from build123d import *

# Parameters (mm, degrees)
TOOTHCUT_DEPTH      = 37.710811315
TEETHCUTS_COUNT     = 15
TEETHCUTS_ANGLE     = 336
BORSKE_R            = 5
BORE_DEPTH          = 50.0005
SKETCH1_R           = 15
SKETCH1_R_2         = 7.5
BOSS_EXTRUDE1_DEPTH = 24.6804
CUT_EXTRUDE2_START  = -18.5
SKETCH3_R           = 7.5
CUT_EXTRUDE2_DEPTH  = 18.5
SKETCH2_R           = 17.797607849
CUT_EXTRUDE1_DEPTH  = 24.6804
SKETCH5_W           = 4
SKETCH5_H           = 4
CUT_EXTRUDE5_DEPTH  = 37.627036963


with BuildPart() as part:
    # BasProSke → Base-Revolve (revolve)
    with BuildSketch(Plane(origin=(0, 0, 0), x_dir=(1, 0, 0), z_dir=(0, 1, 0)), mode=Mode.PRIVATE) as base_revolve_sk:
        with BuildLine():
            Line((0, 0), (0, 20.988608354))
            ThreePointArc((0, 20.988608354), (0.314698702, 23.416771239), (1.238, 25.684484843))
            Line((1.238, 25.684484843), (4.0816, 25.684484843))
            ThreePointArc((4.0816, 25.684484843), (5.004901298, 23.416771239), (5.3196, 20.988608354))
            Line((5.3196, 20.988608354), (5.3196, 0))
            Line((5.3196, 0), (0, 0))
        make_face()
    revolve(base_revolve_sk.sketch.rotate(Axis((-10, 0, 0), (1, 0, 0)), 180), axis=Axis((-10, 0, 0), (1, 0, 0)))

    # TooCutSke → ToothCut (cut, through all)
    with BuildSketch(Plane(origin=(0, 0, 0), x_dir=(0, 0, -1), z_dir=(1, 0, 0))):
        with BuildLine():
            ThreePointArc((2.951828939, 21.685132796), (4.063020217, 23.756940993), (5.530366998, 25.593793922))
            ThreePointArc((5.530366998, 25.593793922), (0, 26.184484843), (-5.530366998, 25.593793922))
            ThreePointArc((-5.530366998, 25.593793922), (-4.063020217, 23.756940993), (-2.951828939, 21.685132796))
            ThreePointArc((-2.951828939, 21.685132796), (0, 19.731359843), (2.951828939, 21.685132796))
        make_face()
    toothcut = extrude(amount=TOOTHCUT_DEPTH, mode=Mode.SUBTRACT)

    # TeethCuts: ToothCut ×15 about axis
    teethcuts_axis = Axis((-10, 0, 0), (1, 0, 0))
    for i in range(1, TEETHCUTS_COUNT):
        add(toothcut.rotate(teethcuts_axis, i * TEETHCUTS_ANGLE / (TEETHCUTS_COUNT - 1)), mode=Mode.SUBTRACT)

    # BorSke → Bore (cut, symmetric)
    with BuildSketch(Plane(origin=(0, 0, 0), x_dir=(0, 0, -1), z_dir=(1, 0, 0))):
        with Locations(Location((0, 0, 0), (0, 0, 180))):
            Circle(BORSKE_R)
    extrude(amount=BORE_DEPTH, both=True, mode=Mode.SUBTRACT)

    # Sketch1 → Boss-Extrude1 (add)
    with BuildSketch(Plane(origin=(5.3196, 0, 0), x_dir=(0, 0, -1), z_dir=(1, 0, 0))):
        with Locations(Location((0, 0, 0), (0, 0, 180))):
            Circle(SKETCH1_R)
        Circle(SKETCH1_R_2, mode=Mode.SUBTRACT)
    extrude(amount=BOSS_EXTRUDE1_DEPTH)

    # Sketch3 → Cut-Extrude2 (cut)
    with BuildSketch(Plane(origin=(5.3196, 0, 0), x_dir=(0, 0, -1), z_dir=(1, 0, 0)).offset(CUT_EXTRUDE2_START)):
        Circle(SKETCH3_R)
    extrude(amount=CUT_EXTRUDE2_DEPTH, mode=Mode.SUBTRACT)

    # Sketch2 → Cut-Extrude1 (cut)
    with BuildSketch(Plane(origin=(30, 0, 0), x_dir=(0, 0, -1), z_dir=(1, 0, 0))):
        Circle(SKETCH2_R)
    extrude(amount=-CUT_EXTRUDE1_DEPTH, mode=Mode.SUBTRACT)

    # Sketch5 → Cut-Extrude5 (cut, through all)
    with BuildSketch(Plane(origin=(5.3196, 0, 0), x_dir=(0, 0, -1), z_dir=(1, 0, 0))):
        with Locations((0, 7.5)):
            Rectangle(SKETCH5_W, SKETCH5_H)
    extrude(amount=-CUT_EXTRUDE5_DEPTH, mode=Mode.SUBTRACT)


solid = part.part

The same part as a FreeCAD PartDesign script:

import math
import FreeCAD as App
import Part
import Sketcher
from FreeCAD import Vector


def add_polygon(sketch, points):
    """Adds a closed chain of lines whose ends are joined by coincident constraints."""
    first, n = sketch.GeometryCount, len(points)
    for a, b in zip(points, points[1:] + points[:1]):
        sketch.addGeometry(Part.LineSegment(App.Vector(*a, 0), App.Vector(*b, 0)), False)
    for i in range(n):
        sketch.addConstraint(Sketcher.Constraint("Coincident", first + i, 2, first + (i + 1) % n, 1))

doc = App.newDocument("Part")
body = doc.addObject("PartDesign::Body", "Body")

# Sketch on XZ plane
sketch1 = body.newObject("Sketcher::SketchObject", "Sketch")
sketch1.AttachmentSupport = (doc.getObject("XZ_Plane"), [""])
sketch1.MapMode = "FlatFace"
sketch1.addGeometry(Part.LineSegment(Vector(0, -21, 0), Vector(0, 0, 0)), False)
sketch1.addGeometry(Part.LineSegment(Vector(0, 0, 0), Vector(5.3, 0, 0)), False)
sketch1.addGeometry(Part.LineSegment(Vector(5.3, 0, 0), Vector(5.3, -21, 0)), False)
sketch1.addGeometry(Part.ArcOfCircle(Part.Circle(Vector(-4.2, -21, 0), Vector(0, 0, 1), 9.5), math.radians(-30), math.radians(0)), False)
sketch1.addGeometry(Part.LineSegment(Vector(4.1, -25.7, 0), Vector(1.2, -25.7, 0)), False)
sketch1.addGeometry(Part.ArcOfCircle(Part.Circle(Vector(9.5, -21, 0), Vector(0, 0, 1), 9.5), math.radians(-180), math.radians(-150)), False)
sketch1.addConstraint(Sketcher.Constraint("Coincident", 0, 2, 1, 1))
sketch1.addConstraint(Sketcher.Constraint("Coincident", 1, 2, 2, 1))
sketch1.addConstraint(Sketcher.Constraint("Tangent", 2, 2, 3, 2))
sketch1.addConstraint(Sketcher.Constraint("Coincident", 3, 1, 4, 1))
sketch1.addConstraint(Sketcher.Constraint("Coincident", 4, 2, 5, 2))
sketch1.addConstraint(Sketcher.Constraint("Tangent", 5, 1, 0, 1))
sketch1.addConstraint(Sketcher.Constraint("Vertical", 0))
sketch1.addConstraint(Sketcher.Constraint("Horizontal", 1))
sketch1.addConstraint(Sketcher.Constraint("Vertical", 2))
sketch1.addConstraint(Sketcher.Constraint("Horizontal", 4))
sketch1.addConstraint(Sketcher.Constraint("Coincident", 0, 2, -1, 1))
sketch1.addConstraint(Sketcher.Constraint("Equal", 3, 5))
sketch1.addConstraint(Sketcher.Constraint("Horizontal", 3, 3, 5, 3))
sketch1.addConstraint(Sketcher.Constraint("Radius", 3, 9.525))
sketch1.addConstraint(Sketcher.Constraint("DistanceX", 1, 1, 1, 2, 5.3196))
sketch1.addConstraint(Sketcher.Constraint("DistanceX", 4, 2, 4, 1, 2.8436))
sketch1.addConstraint(Sketcher.Constraint("DistanceY", 0, 1, 0, 2, 20.988608))
revolution = body.newObject("PartDesign::Revolution", "Revolution")
revolution.Profile = sketch1
revolution.ReferenceAxis = (sketch1, ["H_Axis"])
revolution.Angle = 360

# Sketch on YZ plane
sketch2 = body.newObject("Sketcher::SketchObject", "Sketch001")
sketch2.AttachmentSupport = (doc.getObject("YZ_Plane"), [""])
sketch2.MapMode = "FlatFace"
sketch2.addGeometry(Part.ArcOfCircle(Part.Circle(Vector(16.6, -14.9, 0), Vector(0, 0, 1), 13), math.radians(46), math.radians(67)), False)
sketch2.addGeometry(Part.ArcOfCircle(Part.Circle(Vector(0, 0, 0), Vector(0, 0, 1), 26.2), math.radians(-12), math.radians(12)), False)
sketch2.addGeometry(Part.ArcOfCircle(Part.Circle(Vector(16.6, 14.9, 0), Vector(0, 0, 1), 13), math.radians(-67), math.radians(-46)), False)
sketch2.addGeometry(Part.ArcOfCircle(Part.Circle(Vector(22.9, 0, 0), Vector(0, 0, 1), 3.2), math.radians(113), math.radians(247)), False)
sketch2.addConstraint(Sketcher.Constraint("Coincident", 0, 1, 1, 1))
sketch2.addConstraint(Sketcher.Constraint("Coincident", 1, 2, 2, 2))
sketch2.addConstraint(Sketcher.Constraint("Tangent", 2, 1, 3, 1))
sketch2.addConstraint(Sketcher.Constraint("Tangent", 3, 2, 0, 2))
sketch2.addConstraint(Sketcher.Constraint("Coincident", 1, 3, -1, 1))
sketch2.addConstraint(Sketcher.Constraint("Equal", 0, 2))
sketch2.addConstraint(Sketcher.Constraint("Symmetric", 0, 3, 2, 3, -1))
sketch2.addConstraint(Sketcher.Constraint("Radius", 0, 12.954))
sketch2.addConstraint(Sketcher.Constraint("Radius", 3, 3.20675))
sketch2.addConstraint(Sketcher.Constraint("Radius", 1, 26.184485))
sketch2.addConstraint(Sketcher.Constraint("DistanceX", -1, 1, 0, 3, 16.623602))
sketch2.addConstraint(Sketcher.Constraint("DistanceY", 0, 3, -1, 1, 14.876049))
pocket1 = body.newObject("PartDesign::Pocket", "Pocket")
pocket1.Profile = sketch2
pocket1.Type = "ThroughAll"
pocket1.Reversed = True
doc.recompute()

polarpattern = body.newObject("PartDesign::PolarPattern", "PolarPattern")
polarpattern.Originals = [pocket1]
polarpattern.Axis = (doc.getObject("X_Axis"), [""])
polarpattern.Angle = 360
polarpattern.Occurrences = 15
body.Tip = polarpattern

# Sketch on YZ plane
sketch3 = body.newObject("Sketcher::SketchObject", "Sketch002")
sketch3.AttachmentSupport = (doc.getObject("YZ_Plane"), [""])
sketch3.MapMode = "FlatFace"
sketch3.addGeometry(Part.Circle(Vector(0, 0, 0), Vector(0, 0, 1), 5), False)
sketch3.addConstraint(Sketcher.Constraint("Coincident", 0, 3, -1, 1))
sketch3.addConstraint(Sketcher.Constraint("Diameter", 0, 10.0))
pocket2 = body.newObject("PartDesign::Pocket", "Pocket001")
pocket2.Profile = sketch3
pocket2.Length = 100.001
pocket2.Midplane = True

# Sketch on YZ plane
sketch4 = body.newObject("Sketcher::SketchObject", "Sketch003")
sketch4.AttachmentSupport = (doc.getObject("YZ_Plane"), [""])
sketch4.MapMode = "FlatFace"
sketch4.AttachmentOffset = App.Placement(Vector(0, 0, 5.3196), App.Rotation())
sketch4.addGeometry(Part.Circle(Vector(0, 0, 0), Vector(0, 0, 1), 15), False)
sketch4.addGeometry(Part.Circle(Vector(0, 0, 0), Vector(0, 0, 1), 8), False)
sketch4.addConstraint(Sketcher.Constraint("Coincident", 0, 3, -1, 1))
sketch4.addConstraint(Sketcher.Constraint("Coincident", 1, 3, -1, 1))
sketch4.addConstraint(Sketcher.Constraint("Diameter", 0, 30.0))
sketch4.addConstraint(Sketcher.Constraint("Diameter", 1, 15.0))
pad1 = body.newObject("PartDesign::Pad", "Pad")
pad1.Profile = sketch4
pad1.Length = 24.6804

# Sketch on YZ plane
sketch5 = body.newObject("Sketcher::SketchObject", "Sketch004")
sketch5.AttachmentSupport = (doc.getObject("YZ_Plane"), [""])
sketch5.MapMode = "FlatFace"
sketch5.AttachmentOffset = App.Placement(Vector(0, 0, -13.1804), App.Rotation())
sketch5.addGeometry(Part.Circle(Vector(0, 0, 0), Vector(0, 0, 1), 8), False)
sketch5.addConstraint(Sketcher.Constraint("Coincident", 0, 3, -1, 1))
sketch5.addConstraint(Sketcher.Constraint("Diameter", 0, 15.0))
pocket3 = body.newObject("PartDesign::Pocket", "Pocket002")
pocket3.Profile = sketch5
pocket3.Length = 18.5
pocket3.Reversed = True

# Sketch on YZ plane
sketch6 = body.newObject("Sketcher::SketchObject", "Sketch005")
sketch6.AttachmentSupport = (doc.getObject("YZ_Plane"), [""])
sketch6.MapMode = "FlatFace"
sketch6.AttachmentOffset = App.Placement(Vector(0, 0, 30), App.Rotation())
sketch6.addGeometry(Part.Circle(Vector(0, 0, 0), Vector(0, 0, 1), 18), False)
sketch6.addConstraint(Sketcher.Constraint("Coincident", 0, 3, -1, 1))
sketch6.addConstraint(Sketcher.Constraint("Diameter", 0, 35.595216))
pocket4 = body.newObject("PartDesign::Pocket", "Pocket003")
pocket4.Profile = sketch6
pocket4.Length = 24.6804

# Sketch on YZ plane
sketch7 = body.newObject("Sketcher::SketchObject", "Sketch006")
sketch7.AttachmentSupport = (doc.getObject("YZ_Plane"), [""])
sketch7.MapMode = "FlatFace"
sketch7.AttachmentOffset = App.Placement(Vector(0, 0, 5.3196), App.Rotation())
add_polygon(sketch7, [(9.5, 2), (5.5, 2), (5.5, -2), (9.5, -2)])  # lines 0-3
sketch7.addConstraint(Sketcher.Constraint("Horizontal", 0))
sketch7.addConstraint(Sketcher.Constraint("Vertical", 1))
sketch7.addConstraint(Sketcher.Constraint("Horizontal", 2))
sketch7.addConstraint(Sketcher.Constraint("Vertical", 3))
sketch7.addConstraint(Sketcher.Constraint("Equal", 2, 1))
sketch7.addConstraint(Sketcher.Constraint("DistanceX", 0, 2, 0, 1, 4.0))
sketch7.addConstraint(Sketcher.Constraint("DistanceY", -1, 1, 0, 2, 2.0))
sketch7.addConstraint(Sketcher.Constraint("DistanceX", -1, 1, 0, 2, 5.5))
pocket5 = body.newObject("PartDesign::Pocket", "Pocket004")
pocket5.Profile = sketch7
pocket5.Type = "ThroughAll"

doc.recompute()
